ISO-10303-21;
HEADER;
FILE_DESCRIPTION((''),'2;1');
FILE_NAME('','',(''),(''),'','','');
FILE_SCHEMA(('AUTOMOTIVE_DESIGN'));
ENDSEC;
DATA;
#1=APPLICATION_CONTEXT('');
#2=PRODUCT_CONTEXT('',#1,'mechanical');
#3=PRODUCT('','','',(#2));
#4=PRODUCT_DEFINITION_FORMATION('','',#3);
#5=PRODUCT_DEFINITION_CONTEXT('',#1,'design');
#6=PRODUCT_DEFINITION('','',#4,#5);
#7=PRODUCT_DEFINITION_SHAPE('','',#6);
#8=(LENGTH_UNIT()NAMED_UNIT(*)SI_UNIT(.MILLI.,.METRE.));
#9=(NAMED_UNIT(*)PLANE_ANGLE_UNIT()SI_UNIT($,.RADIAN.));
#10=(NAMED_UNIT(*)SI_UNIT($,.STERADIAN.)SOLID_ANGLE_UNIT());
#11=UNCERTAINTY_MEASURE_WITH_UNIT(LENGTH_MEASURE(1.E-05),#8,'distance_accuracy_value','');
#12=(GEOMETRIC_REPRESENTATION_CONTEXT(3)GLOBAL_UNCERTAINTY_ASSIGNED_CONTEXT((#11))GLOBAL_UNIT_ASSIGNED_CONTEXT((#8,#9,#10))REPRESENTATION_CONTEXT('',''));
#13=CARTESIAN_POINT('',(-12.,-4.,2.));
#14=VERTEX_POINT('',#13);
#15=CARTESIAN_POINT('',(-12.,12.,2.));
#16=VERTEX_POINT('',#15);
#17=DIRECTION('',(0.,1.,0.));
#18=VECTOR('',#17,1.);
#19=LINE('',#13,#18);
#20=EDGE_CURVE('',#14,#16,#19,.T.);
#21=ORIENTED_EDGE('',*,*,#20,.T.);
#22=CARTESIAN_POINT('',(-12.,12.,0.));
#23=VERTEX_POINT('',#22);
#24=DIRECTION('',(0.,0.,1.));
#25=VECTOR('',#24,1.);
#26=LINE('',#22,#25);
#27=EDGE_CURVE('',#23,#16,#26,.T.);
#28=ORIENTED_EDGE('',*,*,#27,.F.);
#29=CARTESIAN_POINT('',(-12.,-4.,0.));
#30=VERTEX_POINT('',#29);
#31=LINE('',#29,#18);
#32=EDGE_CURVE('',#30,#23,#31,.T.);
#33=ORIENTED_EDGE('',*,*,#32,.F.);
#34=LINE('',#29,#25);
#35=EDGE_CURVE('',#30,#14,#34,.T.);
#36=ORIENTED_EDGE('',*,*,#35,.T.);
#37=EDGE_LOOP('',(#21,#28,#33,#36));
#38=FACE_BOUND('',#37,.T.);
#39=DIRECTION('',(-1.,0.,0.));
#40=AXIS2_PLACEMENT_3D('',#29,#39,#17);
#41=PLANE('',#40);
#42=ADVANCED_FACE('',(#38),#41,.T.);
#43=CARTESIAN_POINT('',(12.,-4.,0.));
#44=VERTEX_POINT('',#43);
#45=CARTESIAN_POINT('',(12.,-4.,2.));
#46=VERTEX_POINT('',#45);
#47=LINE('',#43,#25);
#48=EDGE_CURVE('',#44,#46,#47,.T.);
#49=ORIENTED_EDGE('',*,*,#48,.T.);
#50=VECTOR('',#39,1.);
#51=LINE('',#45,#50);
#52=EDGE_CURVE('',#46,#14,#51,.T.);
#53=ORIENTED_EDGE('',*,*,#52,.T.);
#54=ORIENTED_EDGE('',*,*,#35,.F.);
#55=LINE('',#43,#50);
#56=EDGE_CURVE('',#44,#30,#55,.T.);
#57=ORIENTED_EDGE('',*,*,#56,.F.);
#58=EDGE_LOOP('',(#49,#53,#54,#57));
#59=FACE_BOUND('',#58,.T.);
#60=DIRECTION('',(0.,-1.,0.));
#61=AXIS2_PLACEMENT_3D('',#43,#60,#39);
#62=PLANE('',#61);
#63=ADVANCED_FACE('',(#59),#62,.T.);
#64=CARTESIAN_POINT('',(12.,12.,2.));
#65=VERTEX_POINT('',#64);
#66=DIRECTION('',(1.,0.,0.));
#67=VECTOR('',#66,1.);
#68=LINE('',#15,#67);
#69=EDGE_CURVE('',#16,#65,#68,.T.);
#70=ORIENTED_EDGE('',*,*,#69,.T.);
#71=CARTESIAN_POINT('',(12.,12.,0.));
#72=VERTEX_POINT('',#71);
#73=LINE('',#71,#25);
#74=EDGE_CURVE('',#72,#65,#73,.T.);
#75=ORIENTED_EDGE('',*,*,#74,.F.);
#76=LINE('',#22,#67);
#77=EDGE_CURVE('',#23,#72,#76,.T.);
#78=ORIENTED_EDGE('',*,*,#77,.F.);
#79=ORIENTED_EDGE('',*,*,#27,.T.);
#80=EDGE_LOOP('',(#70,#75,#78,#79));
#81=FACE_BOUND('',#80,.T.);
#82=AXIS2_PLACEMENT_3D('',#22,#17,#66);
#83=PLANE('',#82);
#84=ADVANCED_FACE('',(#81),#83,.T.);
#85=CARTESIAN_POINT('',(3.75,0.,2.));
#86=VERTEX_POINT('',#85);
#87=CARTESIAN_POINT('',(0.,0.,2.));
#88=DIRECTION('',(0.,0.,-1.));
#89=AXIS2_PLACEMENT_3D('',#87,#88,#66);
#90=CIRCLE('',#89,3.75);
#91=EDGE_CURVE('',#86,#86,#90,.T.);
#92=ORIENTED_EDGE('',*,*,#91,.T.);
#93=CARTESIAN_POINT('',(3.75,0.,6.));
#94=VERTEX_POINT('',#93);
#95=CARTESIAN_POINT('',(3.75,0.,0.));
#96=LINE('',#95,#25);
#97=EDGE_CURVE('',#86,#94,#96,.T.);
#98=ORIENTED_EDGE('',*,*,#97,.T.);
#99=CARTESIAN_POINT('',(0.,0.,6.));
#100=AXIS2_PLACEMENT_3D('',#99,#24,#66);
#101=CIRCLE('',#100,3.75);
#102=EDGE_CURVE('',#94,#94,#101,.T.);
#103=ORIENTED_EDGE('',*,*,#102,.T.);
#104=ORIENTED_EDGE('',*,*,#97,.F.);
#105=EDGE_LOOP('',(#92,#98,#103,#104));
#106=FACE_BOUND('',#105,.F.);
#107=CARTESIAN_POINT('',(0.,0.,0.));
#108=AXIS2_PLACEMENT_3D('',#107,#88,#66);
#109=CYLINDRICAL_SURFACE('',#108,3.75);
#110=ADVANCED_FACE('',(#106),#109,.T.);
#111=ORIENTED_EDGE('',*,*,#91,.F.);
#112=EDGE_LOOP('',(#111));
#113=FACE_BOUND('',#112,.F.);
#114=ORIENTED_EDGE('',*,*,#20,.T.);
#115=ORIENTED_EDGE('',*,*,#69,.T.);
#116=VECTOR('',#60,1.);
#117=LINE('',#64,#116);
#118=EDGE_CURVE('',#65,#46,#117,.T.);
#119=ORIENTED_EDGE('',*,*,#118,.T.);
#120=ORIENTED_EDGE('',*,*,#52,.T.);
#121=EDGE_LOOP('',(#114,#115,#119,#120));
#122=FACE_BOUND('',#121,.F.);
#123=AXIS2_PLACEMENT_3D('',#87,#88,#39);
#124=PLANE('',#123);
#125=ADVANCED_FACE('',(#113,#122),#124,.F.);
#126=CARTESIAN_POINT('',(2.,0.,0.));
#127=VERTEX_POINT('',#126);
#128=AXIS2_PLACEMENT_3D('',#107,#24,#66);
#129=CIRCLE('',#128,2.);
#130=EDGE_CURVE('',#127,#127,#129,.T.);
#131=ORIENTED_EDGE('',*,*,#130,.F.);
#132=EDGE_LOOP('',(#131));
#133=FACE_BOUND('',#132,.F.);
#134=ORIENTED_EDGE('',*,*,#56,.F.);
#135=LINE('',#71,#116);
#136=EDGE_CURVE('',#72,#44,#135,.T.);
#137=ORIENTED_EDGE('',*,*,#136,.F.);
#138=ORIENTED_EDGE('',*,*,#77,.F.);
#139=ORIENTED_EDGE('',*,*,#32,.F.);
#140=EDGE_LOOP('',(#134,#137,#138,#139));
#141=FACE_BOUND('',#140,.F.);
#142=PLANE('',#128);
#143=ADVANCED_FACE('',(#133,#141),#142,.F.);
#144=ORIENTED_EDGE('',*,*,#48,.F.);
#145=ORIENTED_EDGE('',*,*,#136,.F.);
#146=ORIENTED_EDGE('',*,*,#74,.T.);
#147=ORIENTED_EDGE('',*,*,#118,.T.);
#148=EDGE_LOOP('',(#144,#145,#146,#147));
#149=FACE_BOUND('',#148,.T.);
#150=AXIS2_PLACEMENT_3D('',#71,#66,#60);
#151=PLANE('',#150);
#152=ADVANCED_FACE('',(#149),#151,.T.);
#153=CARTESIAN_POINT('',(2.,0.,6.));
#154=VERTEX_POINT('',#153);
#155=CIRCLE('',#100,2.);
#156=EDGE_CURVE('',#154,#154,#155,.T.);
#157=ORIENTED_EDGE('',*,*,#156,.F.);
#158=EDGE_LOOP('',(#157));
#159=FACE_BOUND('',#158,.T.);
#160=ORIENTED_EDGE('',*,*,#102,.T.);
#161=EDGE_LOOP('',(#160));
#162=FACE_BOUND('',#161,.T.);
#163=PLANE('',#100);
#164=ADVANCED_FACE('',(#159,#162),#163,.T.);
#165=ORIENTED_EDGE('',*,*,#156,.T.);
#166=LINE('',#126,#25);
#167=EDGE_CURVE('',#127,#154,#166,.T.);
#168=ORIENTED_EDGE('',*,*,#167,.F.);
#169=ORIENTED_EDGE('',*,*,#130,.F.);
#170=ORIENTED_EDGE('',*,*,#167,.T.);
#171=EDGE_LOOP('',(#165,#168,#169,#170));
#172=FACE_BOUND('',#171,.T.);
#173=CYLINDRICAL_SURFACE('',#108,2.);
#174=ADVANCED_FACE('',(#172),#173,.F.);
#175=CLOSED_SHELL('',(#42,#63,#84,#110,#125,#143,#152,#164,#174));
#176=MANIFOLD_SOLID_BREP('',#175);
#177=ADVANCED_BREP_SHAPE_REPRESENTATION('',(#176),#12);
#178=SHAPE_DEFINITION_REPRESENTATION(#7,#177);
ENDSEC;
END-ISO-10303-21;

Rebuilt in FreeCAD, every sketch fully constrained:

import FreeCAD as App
import Part
import Sketcher
Q = App.Units.Quantity

doc = App.newDocument("Part")
body = doc.addObject("PartDesign::Body", "Body")

sketch1 = body.newObject("Sketcher::SketchObject", "Sketch")
sketch1.AttachmentSupport = (doc.getObject("XY_Plane"), [""])
sketch1.MapMode = "FlatFace"
sketch1.addGeometry([
    Part.Circle(App.Vector(0, 0, 0), App.Vector(0, 0, 1), 3.75),
    Part.Circle(App.Vector(0, 0, 0), App.Vector(0, 0, 1), 2),
], False)
sketch1.addConstraint([
    Sketcher.Constraint("Coincident", 0, 3, -1, 1),
    Sketcher.Constraint("Coincident", 1, 3, -1, 1),
    Sketcher.Constraint("Diameter", 1, Q("4 mm")),
    Sketcher.Constraint("Diameter", 0, Q("7.5 mm")),
])
pad1 = body.newObject("PartDesign::Pad", "Pad")
pad1.Profile = sketch1
pad1.Length = 6

sketch2 = body.newObject("Sketcher::SketchObject", "Sketch001")
sketch2.AttachmentSupport = (doc.getObject("XY_Plane"), [""])
sketch2.MapMode = "FlatFace"
sketch2.addGeometry([
    Part.LineSegment(App.Vector(12, 12, 0), App.Vector(12, -4, 0)),
    Part.LineSegment(App.Vector(12, -4, 0), App.Vector(-12, -4, 0)),
    Part.LineSegment(App.Vector(-12, -4, 0), App.Vector(-12, 12, 0)),
    Part.LineSegment(App.Vector(-12, 12, 0), App.Vector(12, 12, 0)),
    Part.Circle(App.Vector(0, 0, 0), App.Vector(0, 0, 1), 2),
], False)
sketch2.addConstraint([
    Sketcher.Constraint("Coincident", 0, 2, 1, 1),
    Sketcher.Constraint("Coincident", 1, 2, 2, 1),
    Sketcher.Constraint("Coincident", 2, 2, 3, 1),
    Sketcher.Constraint("Coincident", 3, 2, 0, 1),
    Sketcher.Constraint("Vertical", 0),
    Sketcher.Constraint("Horizontal", 1),
    Sketcher.Constraint("Vertical", 2),
    Sketcher.Constraint("Horizontal", 3),
    Sketcher.Constraint("Coincident", 4, 3, -1, 1),
    Sketcher.Constraint("Diameter", 4, Q("4 mm")),
    Sketcher.Constraint("DistanceX", 1, 2, 1, 1, Q("24 mm")),
    Sketcher.Constraint("DistanceY", 0, 2, 0, 1, Q("16 mm")),
    Sketcher.Constraint("DistanceY", 0, 2, -1, 1, Q("4 mm")),
    Sketcher.Constraint("DistanceX", -1, 1, 0, 2, Q("12 mm")),
])
pad2 = body.newObject("PartDesign::Pad", "Pad001")
pad2.Profile = sketch2
pad2.Length = 2

doc.recompute()
